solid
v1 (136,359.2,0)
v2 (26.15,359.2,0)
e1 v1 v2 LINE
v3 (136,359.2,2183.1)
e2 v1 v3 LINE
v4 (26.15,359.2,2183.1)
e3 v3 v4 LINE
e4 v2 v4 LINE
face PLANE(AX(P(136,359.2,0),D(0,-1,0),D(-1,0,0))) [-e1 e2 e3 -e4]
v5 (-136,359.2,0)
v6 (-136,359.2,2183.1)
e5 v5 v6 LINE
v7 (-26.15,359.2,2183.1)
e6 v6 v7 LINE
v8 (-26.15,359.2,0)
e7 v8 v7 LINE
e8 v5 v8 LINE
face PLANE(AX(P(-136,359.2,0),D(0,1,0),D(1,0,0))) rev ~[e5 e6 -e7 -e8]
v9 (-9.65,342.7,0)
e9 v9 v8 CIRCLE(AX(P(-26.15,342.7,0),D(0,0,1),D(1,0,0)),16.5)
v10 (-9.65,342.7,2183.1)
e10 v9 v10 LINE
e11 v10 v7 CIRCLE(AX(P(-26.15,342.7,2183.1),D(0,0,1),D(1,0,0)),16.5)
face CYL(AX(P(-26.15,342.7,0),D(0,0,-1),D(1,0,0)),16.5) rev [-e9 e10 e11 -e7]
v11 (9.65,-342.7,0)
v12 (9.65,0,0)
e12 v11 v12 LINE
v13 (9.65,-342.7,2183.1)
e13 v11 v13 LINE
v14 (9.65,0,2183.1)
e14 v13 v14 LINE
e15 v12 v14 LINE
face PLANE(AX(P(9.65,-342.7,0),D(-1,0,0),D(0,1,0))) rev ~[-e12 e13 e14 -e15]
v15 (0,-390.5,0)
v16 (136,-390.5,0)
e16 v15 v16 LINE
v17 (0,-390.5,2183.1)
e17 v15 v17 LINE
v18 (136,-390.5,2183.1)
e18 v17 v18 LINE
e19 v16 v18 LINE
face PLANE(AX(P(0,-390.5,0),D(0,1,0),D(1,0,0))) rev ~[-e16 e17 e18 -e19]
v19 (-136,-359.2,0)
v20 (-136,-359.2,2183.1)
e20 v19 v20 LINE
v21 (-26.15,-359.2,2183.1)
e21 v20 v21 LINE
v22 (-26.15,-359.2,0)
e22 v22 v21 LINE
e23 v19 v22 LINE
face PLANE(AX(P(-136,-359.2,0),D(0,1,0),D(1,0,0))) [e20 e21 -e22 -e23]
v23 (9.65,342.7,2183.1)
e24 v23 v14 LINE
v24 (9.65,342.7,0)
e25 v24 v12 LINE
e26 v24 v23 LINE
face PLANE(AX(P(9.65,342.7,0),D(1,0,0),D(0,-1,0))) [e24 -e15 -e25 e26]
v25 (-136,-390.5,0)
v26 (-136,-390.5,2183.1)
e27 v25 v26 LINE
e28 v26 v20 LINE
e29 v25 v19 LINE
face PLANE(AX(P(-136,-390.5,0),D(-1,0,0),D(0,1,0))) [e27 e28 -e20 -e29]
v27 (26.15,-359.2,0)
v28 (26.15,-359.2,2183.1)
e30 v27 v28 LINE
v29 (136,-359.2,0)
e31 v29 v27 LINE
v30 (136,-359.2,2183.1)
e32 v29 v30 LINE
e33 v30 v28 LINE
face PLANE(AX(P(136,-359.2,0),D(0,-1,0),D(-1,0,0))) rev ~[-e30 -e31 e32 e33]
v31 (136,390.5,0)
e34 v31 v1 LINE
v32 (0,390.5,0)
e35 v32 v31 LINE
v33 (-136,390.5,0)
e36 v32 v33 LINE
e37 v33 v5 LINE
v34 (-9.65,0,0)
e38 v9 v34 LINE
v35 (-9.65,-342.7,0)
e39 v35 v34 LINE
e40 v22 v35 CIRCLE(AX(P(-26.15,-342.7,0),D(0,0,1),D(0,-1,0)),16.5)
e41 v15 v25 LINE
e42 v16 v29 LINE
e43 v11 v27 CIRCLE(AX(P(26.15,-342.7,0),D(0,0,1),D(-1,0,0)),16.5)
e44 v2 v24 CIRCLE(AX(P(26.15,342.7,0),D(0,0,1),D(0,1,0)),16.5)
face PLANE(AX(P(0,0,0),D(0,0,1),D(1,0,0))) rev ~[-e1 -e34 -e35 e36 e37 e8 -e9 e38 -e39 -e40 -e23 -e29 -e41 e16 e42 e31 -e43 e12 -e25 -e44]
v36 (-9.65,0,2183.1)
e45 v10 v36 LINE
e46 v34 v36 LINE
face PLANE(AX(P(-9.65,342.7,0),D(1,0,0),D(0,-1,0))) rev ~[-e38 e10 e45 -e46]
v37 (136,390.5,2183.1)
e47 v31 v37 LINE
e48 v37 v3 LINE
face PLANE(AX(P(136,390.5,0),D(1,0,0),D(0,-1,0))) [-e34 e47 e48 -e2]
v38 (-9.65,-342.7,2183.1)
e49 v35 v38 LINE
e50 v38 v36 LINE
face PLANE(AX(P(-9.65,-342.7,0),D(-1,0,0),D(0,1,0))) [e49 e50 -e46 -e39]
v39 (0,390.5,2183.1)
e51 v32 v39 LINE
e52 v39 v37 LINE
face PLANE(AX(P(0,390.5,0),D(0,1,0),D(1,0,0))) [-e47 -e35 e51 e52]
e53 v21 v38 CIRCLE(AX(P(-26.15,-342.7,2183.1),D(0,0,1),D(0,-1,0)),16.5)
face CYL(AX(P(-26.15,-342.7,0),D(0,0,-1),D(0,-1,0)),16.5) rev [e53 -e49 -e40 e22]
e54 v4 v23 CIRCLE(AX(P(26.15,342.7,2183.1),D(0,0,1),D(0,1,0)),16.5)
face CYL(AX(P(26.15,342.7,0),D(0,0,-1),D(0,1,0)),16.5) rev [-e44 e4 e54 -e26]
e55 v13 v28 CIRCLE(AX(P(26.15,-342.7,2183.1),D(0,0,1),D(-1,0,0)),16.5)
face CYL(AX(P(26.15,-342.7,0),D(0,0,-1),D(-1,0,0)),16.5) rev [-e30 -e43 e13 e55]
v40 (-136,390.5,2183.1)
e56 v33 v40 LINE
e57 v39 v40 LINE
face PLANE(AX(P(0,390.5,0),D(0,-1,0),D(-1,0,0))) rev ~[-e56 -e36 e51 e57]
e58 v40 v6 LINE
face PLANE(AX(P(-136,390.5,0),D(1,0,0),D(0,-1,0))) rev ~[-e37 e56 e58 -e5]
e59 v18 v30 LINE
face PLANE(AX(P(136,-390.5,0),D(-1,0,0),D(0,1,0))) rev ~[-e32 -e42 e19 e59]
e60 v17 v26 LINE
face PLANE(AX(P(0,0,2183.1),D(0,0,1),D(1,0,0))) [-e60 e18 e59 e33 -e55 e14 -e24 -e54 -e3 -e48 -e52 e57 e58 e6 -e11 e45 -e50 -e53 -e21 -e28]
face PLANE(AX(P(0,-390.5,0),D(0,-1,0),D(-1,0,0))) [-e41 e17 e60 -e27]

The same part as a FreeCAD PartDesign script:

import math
import FreeCAD as App
import Part
import Sketcher

V = App.Vector
Q = App.Units.Quantity

doc = App.newDocument("Part")
body = doc.addObject("PartDesign::Body", "Body")

# Sketch on XY plane
sketch1 = body.newObject("Sketcher::SketchObject", "Sketch")
sketch1.AttachmentSupport = (doc.getObject("XY_Plane"), [""])
sketch1.MapMode = "FlatFace"
sketch1.addGeometry(Part.LineSegment(V(-136, -359.2, 0), V(-136, -390.5, 0)), False)
sketch1.addGeometry(Part.LineSegment(V(-136, -390.5, 0), V(136, -390.5, 0)), False)
sketch1.addGeometry(Part.LineSegment(V(136, -390.5, 0), V(136, -359.2, 0)), False)
sketch1.addGeometry(Part.LineSegment(V(136, -359.2, 0), V(26.15, -359.2, 0)), False)
sketch1.addGeometry(Part.ArcOfCircle(Part.Circle(V(26.15, -342.7, 0), V(0, 0, 1), 16.5), math.radians(180), math.radians(270)), False)
sketch1.addGeometry(Part.LineSegment(V(9.65, -342.7, 0), V(9.65, 342.7, 0)), False)
sketch1.addGeometry(Part.ArcOfCircle(Part.Circle(V(26.15, 342.7, 0), V(0, 0, 1), 16.5), math.radians(90), math.radians(180)), False)
sketch1.addGeometry(Part.LineSegment(V(26.15, 359.2, 0), V(136, 359.2, 0)), False)
sketch1.addGeometry(Part.LineSegment(V(136, 359.2, 0), V(136, 390.5, 0)), False)
sketch1.addGeometry(Part.LineSegment(V(136, 390.5, 0), V(-136, 390.5, 0)), False)
sketch1.addGeometry(Part.LineSegment(V(-136, 390.5, 0), V(-136, 359.2, 0)), False)
sketch1.addGeometry(Part.LineSegment(V(-136, 359.2, 0), V(-26.15, 359.2, 0)), False)
sketch1.addGeometry(Part.ArcOfCircle(Part.Circle(V(-26.15, 342.7, 0), V(0, 0, 1), 16.5), math.radians(0), math.radians(90)), False)
sketch1.addGeometry(Part.LineSegment(V(-9.65, 342.7, 0), V(-9.65, -342.7, 0)), False)
sketch1.addGeometry(Part.ArcOfCircle(Part.Circle(V(-26.15, -342.7, 0), V(0, 0, 1), 16.5), math.radians(-90), math.radians(0)), False)
sketch1.addGeometry(Part.LineSegment(V(-26.15, -359.2, 0), V(-136, -359.2, 0)), False)
sketch1.addConstraint(Sketcher.Constraint("Coincident", 0, 2, 1, 1))
sketch1.addConstraint(Sketcher.Constraint("Coincident", 1, 2, 2, 1))
sketch1.addConstraint(Sketcher.Constraint("Coincident", 2, 2, 3, 1))
sketch1.addConstraint(Sketcher.Constraint("Tangent", 3, 2, 4, 2))
sketch1.addConstraint(Sketcher.Constraint("Tangent", 4, 1, 5, 1))
sketch1.addConstraint(Sketcher.Constraint("Tangent", 5, 2, 6, 2))
sketch1.addConstraint(Sketcher.Constraint("Tangent", 6, 1, 7, 1))
sketch1.addConstraint(Sketcher.Constraint("Coincident", 7, 2, 8, 1))
sketch1.addConstraint(Sketcher.Constraint("Coincident", 8, 2, 9, 1))
sketch1.addConstraint(Sketcher.Constraint("Coincident", 9, 2, 10, 1))
sketch1.addConstraint(Sketcher.Constraint("Coincident", 10, 2, 11, 1))
sketch1.addConstraint(Sketcher.Constraint("Tangent", 11, 2, 12, 2))
sketch1.addConstraint(Sketcher.Constraint("Tangent", 12, 1, 13, 1))
sketch1.addConstraint(Sketcher.Constraint("Tangent", 13, 2, 14, 2))
sketch1.addConstraint(Sketcher.Constraint("Tangent", 14, 1, 15, 1))
sketch1.addConstraint(Sketcher.Constraint("Coincident", 15, 2, 0, 1))
sketch1.addConstraint(Sketcher.Constraint("Vertical", 0))
sketch1.addConstraint(Sketcher.Constraint("Horizontal", 1))
sketch1.addConstraint(Sketcher.Constraint("Vertical", 2))
sketch1.addConstraint(Sketcher.Constraint("Horizontal", 3))
sketch1.addConstraint(Sketcher.Constraint("Vertical", 5))
sketch1.addConstraint(Sketcher.Constraint("Horizontal", 7))
sketch1.addConstraint(Sketcher.Constraint("Vertical", 8))
sketch1.addConstraint(Sketcher.Constraint("Horizontal", 9))
sketch1.addConstraint(Sketcher.Constraint("Vertical", 10))
sketch1.addConstraint(Sketcher.Constraint("Horizontal", 11))
sketch1.addConstraint(Sketcher.Constraint("Vertical", 13))
sketch1.addConstraint(Sketcher.Constraint("Horizontal", 15))
sketch1.addConstraint(Sketcher.Constraint("Equal", 4, 6))
sketch1.addConstraint(Sketcher.Constraint("Equal", 6, 12))
sketch1.addConstraint(Sketcher.Constraint("Equal", 12, 14))
sketch1.addConstraint(Sketcher.Constraint("Symmetric", 4, 3, 12, 3, -1, 1))
sketch1.addConstraint(Sketcher.Constraint("Symmetric", 0, 2, 8, 2, -1, 1))
sketch1.addConstraint(Sketcher.Constraint("Symmetric", 7, 2, 10, 2, -2))
sketch1.addConstraint(Sketcher.Constraint("Symmetric", 2, 2, 15, 2, -2))
sketch1.addConstraint(Sketcher.Constraint("Radius", 4, Q("16.5 mm")))
sketch1.addConstraint(Sketcher.Constraint("DistanceY", 0, 2, 0, 1, Q("31.3 mm")))
sketch1.addConstraint(Sketcher.Constraint("DistanceX", 0, 2, -1, 1, Q("136 mm")))
sketch1.addConstraint(Sketcher.Constraint("DistanceY", 0, 2, -1, 1, Q("390.5 mm")))
sketch1.addConstraint(Sketcher.Constraint("DistanceX", -1, 1, 4, 1, Q("9.65 mm")))
pad1 = body.newObject("PartDesign::Pad", "Pad")
pad1.Profile = sketch1
pad1.Length = 2183.1

doc.recompute()
